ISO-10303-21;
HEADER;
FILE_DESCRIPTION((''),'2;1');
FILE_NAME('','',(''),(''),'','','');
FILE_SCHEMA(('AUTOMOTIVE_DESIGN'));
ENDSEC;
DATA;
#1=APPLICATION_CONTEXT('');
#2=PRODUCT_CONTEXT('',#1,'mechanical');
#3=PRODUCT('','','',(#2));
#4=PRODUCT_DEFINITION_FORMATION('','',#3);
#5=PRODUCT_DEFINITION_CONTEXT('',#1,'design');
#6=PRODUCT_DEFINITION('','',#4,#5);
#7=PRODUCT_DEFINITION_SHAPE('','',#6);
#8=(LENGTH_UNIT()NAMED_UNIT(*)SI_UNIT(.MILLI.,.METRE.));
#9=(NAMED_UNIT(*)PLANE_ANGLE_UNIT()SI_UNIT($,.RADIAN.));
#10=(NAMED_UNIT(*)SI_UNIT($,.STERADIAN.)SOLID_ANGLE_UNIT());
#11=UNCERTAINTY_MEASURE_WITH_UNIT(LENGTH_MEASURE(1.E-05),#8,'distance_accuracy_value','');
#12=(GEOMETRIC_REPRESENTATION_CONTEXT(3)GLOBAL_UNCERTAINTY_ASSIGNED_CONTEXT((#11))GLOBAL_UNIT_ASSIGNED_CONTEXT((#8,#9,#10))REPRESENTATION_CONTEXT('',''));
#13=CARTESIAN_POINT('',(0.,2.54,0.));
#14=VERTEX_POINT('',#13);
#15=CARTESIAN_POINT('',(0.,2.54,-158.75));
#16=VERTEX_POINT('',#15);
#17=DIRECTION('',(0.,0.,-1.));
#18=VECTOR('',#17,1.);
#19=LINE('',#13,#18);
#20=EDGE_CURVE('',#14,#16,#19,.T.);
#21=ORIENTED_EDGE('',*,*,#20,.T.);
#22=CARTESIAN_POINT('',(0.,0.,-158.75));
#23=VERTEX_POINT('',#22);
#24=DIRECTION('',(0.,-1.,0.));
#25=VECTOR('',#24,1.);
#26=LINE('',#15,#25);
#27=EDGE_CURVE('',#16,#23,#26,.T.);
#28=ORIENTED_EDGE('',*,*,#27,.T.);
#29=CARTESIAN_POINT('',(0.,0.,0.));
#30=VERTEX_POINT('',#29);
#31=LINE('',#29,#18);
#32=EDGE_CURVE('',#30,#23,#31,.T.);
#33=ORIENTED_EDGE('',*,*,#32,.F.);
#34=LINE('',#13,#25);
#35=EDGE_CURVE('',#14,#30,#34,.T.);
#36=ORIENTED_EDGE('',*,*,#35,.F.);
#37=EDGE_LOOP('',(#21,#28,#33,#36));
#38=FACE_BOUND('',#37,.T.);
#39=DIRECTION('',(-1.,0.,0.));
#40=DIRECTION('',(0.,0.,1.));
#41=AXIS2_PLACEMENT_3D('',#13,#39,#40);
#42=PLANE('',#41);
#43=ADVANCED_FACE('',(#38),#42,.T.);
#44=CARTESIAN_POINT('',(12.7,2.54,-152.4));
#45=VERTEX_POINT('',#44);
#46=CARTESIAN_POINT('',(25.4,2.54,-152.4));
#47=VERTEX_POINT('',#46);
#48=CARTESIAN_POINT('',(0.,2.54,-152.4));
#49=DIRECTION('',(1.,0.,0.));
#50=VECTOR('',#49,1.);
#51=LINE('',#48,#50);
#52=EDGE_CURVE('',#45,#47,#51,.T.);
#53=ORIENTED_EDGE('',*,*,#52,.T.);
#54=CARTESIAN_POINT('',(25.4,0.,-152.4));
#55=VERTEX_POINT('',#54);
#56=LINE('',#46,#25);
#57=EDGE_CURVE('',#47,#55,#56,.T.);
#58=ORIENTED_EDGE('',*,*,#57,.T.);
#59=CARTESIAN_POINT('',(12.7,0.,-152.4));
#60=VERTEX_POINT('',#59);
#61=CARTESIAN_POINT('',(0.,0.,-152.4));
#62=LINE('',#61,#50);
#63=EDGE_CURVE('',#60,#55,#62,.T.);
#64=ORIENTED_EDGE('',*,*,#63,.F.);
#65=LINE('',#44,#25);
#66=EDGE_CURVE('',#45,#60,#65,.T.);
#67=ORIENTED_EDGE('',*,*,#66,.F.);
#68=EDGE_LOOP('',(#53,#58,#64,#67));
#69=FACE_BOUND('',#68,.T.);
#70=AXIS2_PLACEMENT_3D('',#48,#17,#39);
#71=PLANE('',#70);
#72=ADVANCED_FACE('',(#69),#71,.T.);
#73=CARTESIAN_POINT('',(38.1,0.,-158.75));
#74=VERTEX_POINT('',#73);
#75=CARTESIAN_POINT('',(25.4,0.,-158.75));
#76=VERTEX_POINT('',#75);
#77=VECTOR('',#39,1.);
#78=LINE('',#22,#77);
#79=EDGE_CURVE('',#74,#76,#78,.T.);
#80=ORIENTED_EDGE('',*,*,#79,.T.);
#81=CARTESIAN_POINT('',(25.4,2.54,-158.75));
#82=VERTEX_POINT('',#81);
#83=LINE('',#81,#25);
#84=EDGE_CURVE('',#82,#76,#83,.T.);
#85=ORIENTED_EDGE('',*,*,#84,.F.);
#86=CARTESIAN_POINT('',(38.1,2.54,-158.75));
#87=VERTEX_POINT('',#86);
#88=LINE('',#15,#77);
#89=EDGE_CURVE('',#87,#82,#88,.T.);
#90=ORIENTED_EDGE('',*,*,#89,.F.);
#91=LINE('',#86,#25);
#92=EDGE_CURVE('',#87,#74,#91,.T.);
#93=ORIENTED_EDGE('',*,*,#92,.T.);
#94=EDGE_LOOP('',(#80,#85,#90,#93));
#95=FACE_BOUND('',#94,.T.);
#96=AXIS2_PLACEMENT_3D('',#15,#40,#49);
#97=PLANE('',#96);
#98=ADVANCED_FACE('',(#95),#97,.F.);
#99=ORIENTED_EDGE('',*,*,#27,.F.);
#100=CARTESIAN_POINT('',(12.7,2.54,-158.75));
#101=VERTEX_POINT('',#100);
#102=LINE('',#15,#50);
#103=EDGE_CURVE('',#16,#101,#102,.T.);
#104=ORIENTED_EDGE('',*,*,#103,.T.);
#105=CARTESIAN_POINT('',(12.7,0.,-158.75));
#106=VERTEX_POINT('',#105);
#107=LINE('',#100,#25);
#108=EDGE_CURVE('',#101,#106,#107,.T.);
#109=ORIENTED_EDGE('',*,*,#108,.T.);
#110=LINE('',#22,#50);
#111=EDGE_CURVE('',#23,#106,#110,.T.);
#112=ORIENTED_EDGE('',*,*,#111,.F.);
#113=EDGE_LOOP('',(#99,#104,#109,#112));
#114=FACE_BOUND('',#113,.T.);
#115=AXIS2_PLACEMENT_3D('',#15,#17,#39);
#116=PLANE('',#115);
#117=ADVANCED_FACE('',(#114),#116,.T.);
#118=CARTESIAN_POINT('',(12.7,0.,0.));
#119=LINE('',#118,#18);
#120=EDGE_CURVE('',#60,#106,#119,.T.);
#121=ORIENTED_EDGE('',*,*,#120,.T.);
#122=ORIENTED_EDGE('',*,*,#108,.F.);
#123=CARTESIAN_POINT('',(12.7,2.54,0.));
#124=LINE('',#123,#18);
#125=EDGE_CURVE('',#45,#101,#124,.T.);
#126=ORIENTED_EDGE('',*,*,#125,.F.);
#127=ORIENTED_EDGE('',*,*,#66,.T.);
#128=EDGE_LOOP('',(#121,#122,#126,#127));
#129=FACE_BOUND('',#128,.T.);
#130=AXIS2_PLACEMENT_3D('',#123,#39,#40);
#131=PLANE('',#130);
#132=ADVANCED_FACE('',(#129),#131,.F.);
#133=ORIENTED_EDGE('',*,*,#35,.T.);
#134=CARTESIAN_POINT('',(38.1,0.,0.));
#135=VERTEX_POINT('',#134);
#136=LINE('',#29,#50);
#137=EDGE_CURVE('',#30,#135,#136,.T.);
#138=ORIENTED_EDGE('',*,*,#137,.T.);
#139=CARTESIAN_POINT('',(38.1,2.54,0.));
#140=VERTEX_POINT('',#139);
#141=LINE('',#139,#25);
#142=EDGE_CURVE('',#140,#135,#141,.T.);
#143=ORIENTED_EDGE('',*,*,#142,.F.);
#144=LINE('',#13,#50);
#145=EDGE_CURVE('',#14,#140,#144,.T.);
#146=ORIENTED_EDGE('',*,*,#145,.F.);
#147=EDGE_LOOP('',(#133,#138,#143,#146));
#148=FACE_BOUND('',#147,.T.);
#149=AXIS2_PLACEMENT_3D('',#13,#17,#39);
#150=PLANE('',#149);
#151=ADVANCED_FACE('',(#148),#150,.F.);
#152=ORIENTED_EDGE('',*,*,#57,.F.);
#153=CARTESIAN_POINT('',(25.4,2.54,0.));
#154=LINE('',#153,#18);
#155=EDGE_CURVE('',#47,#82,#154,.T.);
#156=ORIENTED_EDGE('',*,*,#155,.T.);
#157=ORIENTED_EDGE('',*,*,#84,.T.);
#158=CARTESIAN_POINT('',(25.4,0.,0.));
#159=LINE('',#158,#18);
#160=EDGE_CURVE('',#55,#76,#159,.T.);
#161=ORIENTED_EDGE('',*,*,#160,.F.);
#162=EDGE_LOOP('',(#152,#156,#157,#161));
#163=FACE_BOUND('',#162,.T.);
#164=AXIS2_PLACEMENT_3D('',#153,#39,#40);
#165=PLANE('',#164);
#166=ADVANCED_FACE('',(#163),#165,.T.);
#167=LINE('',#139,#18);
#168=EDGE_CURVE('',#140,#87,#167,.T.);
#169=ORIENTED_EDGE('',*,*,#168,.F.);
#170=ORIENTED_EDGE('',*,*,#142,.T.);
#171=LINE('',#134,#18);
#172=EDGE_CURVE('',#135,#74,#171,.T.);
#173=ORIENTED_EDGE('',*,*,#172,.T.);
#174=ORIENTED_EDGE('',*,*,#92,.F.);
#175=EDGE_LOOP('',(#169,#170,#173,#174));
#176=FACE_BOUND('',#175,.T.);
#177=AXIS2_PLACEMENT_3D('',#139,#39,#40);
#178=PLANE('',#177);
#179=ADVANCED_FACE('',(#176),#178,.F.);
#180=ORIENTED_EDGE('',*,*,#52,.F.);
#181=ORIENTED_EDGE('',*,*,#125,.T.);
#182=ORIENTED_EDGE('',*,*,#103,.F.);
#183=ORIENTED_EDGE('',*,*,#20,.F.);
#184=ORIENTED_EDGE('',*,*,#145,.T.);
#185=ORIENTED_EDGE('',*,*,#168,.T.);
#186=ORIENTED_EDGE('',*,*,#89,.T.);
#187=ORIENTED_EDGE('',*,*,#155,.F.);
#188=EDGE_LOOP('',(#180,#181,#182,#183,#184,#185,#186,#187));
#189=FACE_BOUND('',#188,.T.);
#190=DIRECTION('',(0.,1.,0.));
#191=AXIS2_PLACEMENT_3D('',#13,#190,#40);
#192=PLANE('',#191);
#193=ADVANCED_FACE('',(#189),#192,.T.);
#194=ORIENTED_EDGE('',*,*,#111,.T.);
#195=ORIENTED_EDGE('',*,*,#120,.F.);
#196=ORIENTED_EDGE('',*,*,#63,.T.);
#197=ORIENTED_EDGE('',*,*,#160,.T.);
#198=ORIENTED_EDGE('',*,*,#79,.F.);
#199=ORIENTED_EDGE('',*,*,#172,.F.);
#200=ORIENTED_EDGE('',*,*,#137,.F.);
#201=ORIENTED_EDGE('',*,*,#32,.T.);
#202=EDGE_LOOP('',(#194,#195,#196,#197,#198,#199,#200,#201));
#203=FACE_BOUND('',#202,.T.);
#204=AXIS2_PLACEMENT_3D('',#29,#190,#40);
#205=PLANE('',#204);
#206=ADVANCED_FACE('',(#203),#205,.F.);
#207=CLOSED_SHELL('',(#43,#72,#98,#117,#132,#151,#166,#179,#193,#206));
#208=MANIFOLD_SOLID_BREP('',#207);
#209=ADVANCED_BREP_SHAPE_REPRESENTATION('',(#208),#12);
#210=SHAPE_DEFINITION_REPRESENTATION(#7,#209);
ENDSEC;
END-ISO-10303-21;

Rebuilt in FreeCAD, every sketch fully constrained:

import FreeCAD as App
import Part
import Sketcher
from FreeCAD import Vector
Q = App.Units.Quantity


def add_polygon(sketch, points):
    """Adds a closed chain of lines whose ends are joined by coincident constraints."""
    first, n = sketch.GeometryCount, len(points)
    for a, b in zip(points, points[1:] + points[:1]):
        sketch.addGeometry(Part.LineSegment(App.Vector(*a, 0), App.Vector(*b, 0)), False)
    for i in range(n):
        sketch.addConstraint(Sketcher.Constraint("Coincident", first + i, 2, first + (i + 1) % n, 1))

doc = App.newDocument("Part")
body = doc.addObject("PartDesign::Body", "Body")

# Sketch on XZ plane
sketch1 = doc.addObject("Sketcher::SketchObject", "Sketch")
body.addObject(sketch1)
sketch1.AttachmentSupport = (doc.XZ_Plane, [""])
sketch1.MapMode = "FlatFace"
add_polygon(sketch1, [(0, 0), (38.1, 0), (38.1, -158.75), (25.4, -158.75), (25.4, -152.4), (12.7, -152.4), (12.7, -158.75), (0, -158.75)])  # lines 0-7
sketch1.addConstraint(Sketcher.Constraint("Horizontal", 0))
sketch1.addConstraint(Sketcher.Constraint("Vertical", 1))
sketch1.addConstraint(Sketcher.Constraint("Horizontal", 2))
sketch1.addConstraint(Sketcher.Constraint("Vertical", 3))
sketch1.addConstraint(Sketcher.Constraint("Horizontal", 4))
sketch1.addConstraint(Sketcher.Constraint("Vertical", 5))
sketch1.addConstraint(Sketcher.Constraint("Horizontal", 6))
sketch1.addConstraint(Sketcher.Constraint("Vertical", 7))
sketch1.addConstraint(Sketcher.Constraint("Coincident", 7, 2, -1, 1))
sketch1.addConstraint(Sketcher.Constraint("Horizontal", 2, 2, 5, 2))
sketch1.addConstraint(Sketcher.Constraint("Equal", 2, 4))
sketch1.addConstraint(Sketcher.Constraint("Equal", 4, 6))
sketch1.addConstraint(Sketcher.Constraint("DistanceX", 0, 1, 0, 2, Q("1.5 in")))
sketch1.addConstraint(Sketcher.Constraint("DistanceY", 3, 2, -1, 1, Q("6 in")))
sketch1.addConstraint(Sketcher.Constraint("DistanceY", 1, 2, 1, 1, Q("6.25 in")))
pad1 = doc.addObject("PartDesign::Pad", "Pad")
body.addObject(pad1)
pad1.Profile = sketch1
pad1.Length = Q("0.1 in")
pad1.Reversed = True

doc.recompute()
